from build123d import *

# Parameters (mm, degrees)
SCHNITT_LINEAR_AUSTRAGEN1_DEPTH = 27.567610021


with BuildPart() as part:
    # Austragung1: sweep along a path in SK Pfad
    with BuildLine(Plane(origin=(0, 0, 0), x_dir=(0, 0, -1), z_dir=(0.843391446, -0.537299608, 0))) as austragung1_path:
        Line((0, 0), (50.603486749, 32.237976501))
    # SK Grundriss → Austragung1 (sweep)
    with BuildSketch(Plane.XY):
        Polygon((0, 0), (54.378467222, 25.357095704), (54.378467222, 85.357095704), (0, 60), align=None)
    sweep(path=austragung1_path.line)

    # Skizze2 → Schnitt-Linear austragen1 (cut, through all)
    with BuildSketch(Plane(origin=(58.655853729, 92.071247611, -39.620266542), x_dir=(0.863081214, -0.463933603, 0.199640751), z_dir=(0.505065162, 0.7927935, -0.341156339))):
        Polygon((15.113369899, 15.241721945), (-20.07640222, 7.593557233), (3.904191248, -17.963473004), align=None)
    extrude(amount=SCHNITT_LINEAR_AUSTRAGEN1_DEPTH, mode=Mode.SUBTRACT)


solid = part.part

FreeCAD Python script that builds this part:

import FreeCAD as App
import Part
import Sketcher

V = App.Vector
Q = App.Units.Quantity

doc = App.newDocument("Part")
body = doc.addObject("PartDesign::Body", "Body")

# Sketch on XY plane
sketch1 = body.newObject("Sketcher::SketchObject", "Sketch")
sketch1.AttachmentSupport = (doc.getObject("XY_Plane"), [""])
sketch1.MapMode = "FlatFace"
sketch1.addGeometry(Part.LineSegment(V(0, 0, 0), V(54, 25, 0)), False)
sketch1.addGeometry(Part.LineSegment(V(54, 25, 0), V(54, 85, 0)), False)
sketch1.addGeometry(Part.LineSegment(V(54, 85, 0), V(0, 60, 0)), False)
sketch1.addGeometry(Part.LineSegment(V(0, 60, 0), V(0, 0, 0)), False)
sketch1.addConstraint(Sketcher.Constraint("Coincident", 0, 2, 1, 1))
sketch1.addConstraint(Sketcher.Constraint("Coincident", 1, 2, 2, 1))
sketch1.addConstraint(Sketcher.Constraint("Coincident", 2, 2, 3, 1))
sketch1.addConstraint(Sketcher.Constraint("Coincident", 3, 2, 0, 1))
sketch1.addConstraint(Sketcher.Constraint("Vertical", 1))
sketch1.addConstraint(Sketcher.Constraint("Vertical", 3))
sketch1.addConstraint(Sketcher.Constraint("Coincident", 3, 2, -1, 1))
sketch1.addConstraint(Sketcher.Constraint("Parallel", 0, 2))
sketch1.addConstraint(Sketcher.Constraint("DistanceY", 1, 1, 1, 2, Q("60 mm")))
sketch1.addConstraint(Sketcher.Constraint("Angle", 0, Q("25 deg")))
sketch1.addConstraint(Sketcher.Constraint("Distance", 0, Q("60 mm")))

# Sketch on an angled plane
sketch2 = body.newObject("Sketcher::SketchObject", "Sketch001")
sketch2.Placement = App.Placement(V(0, 0, 0), App.Rotation(V(0, 0.473306151, -0.880898001), V(1.000000001, 0, 0), V(0, -0.880898001, -0.473306151), "ZXY"))
sketch2.addGeometry(Part.LineSegment(V(0, 0, 0), V(57, 17, 0)), False)
sketch2.addConstraint(Sketcher.Constraint("Coincident", 0, 1, -1, 1))
sketch2.addConstraint(Sketcher.Constraint("Distance", 0, Q("60 mm")))
sketch2.addConstraint(Sketcher.Constraint("DistanceX", -1, 1, 0, 2, Q("57.445342 mm")))
doc.recompute()

additivepipe = body.newObject("PartDesign::AdditivePipe", "AdditivePipe")
additivepipe.Profile = sketch1
additivepipe.Spine = (sketch2, ["Edge1"])

# Sketch on an angled plane
sketch3 = body.newObject("Sketcher::SketchObject", "Sketch002")
sketch3.Placement = App.Placement(V(58.655854, 92.071248, -39.620267), App.Rotation(V(0.863081214, -0.463933604, 0.199640751), V(0, -0.395277215, -0.918561877), V(0.505065162, 0.7927935, -0.341156339), "ZXY"))
sketch3.addGeometry(Part.LineSegment(V(15, 15, 0), V(-20, 8, 0)), False)
sketch3.addGeometry(Part.LineSegment(V(-20, 8, 0), V(4, -18, 0)), False)
sketch3.addGeometry(Part.LineSegment(V(4, -18, 0), V(15, 15, 0)), False)
sketch3.addConstraint(Sketcher.Constraint("Coincident", 0, 2, 1, 1))
sketch3.addConstraint(Sketcher.Constraint("Coincident", 1, 2, 2, 1))
sketch3.addConstraint(Sketcher.Constraint("Coincident", 2, 2, 0, 1))
sketch3.addConstraint(Sketcher.Constraint("Equal", 1, 2))
sketch3.addConstraint(Sketcher.Constraint("Distance", 0, Q("36.011311 mm")))
sketch3.addConstraint(Sketcher.Constraint("Distance", 1, Q("35.046122 mm")))
sketch3.addConstraint(Sketcher.Constraint("DistanceX", -1, 1, 1, 2, Q("3.904191 mm")))
sketch3.addConstraint(Sketcher.Constraint("DistanceX", -1, 1, 2, 2, Q("15.11337 mm")))
sketch3.addConstraint(Sketcher.Constraint("DistanceY", -1, 1, 2, 2, Q("15.241722 mm")))
pocket1 = body.newObject("PartDesign::Pocket", "Pocket")
pocket1.Profile = sketch3
pocket1.Type = "ThroughAll"
pocket1.Reversed = True

doc.recompute()
